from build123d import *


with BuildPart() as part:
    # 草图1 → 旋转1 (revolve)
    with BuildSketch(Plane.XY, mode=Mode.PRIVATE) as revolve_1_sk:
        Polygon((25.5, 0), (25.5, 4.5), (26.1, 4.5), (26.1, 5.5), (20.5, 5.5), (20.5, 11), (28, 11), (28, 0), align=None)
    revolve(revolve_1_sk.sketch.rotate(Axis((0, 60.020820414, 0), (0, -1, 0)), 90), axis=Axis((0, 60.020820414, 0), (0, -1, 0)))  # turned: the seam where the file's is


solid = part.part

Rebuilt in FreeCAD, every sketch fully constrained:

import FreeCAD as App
import Part
import Sketcher
Q = App.Units.Quantity

doc = App.newDocument("Part")
body = doc.addObject("PartDesign::Body", "Body")

sketch1 = body.newObject("Sketcher::SketchObject", "Sketch")
sketch1.AttachmentSupport = (doc.getObject("XY_Plane"), [""])
sketch1.MapMode = "FlatFace"
sketch1.addGeometry(Part.LineSegment(App.Vector(25.5, 4.5, 0), App.Vector(25.5, 0, 0)), False)
sketch1.addGeometry(Part.LineSegment(App.Vector(25.5, 0, 0), App.Vector(28, 0, 0)), False)
sketch1.addGeometry(Part.LineSegment(App.Vector(28, 0, 0), App.Vector(28, 11, 0)), False)
sketch1.addGeometry(Part.LineSegment(App.Vector(28, 11, 0), App.Vector(20.5, 11, 0)), False)
sketch1.addGeometry(Part.LineSegment(App.Vector(20.5, 11, 0), App.Vector(20.5, 5.5, 0)), False)
sketch1.addGeometry(Part.LineSegment(App.Vector(20.5, 5.5, 0), App.Vector(26.1, 5.5, 0)), False)
sketch1.addGeometry(Part.LineSegment(App.Vector(26.1, 5.5, 0), App.Vector(26.1, 4.5, 0)), False)
sketch1.addGeometry(Part.LineSegment(App.Vector(26.1, 4.5, 0), App.Vector(25.5, 4.5, 0)), False)
sketch1.addConstraint(Sketcher.Constraint("Coincident", 0, 2, 1, 1))
sketch1.addConstraint(Sketcher.Constraint("Coincident", 1, 2, 2, 1))
sketch1.addConstraint(Sketcher.Constraint("Coincident", 2, 2, 3, 1))
sketch1.addConstraint(Sketcher.Constraint("Coincident", 3, 2, 4, 1))
sketch1.addConstraint(Sketcher.Constraint("Coincident", 4, 2, 5, 1))
sketch1.addConstraint(Sketcher.Constraint("Coincident", 5, 2, 6, 1))
sketch1.addConstraint(Sketcher.Constraint("Coincident", 6, 2, 7, 1))
sketch1.addConstraint(Sketcher.Constraint("Coincident", 7, 2, 0, 1))
sketch1.addConstraint(Sketcher.Constraint("Vertical", 0))
sketch1.addConstraint(Sketcher.Constraint("Horizontal", 1))
sketch1.addConstraint(Sketcher.Constraint("Vertical", 2))
sketch1.addConstraint(Sketcher.Constraint("Horizontal", 3))
sketch1.addConstraint(Sketcher.Constraint("Vertical", 4))
sketch1.addConstraint(Sketcher.Constraint("Horizontal", 5))
sketch1.addConstraint(Sketcher.Constraint("Vertical", 6))
sketch1.addConstraint(Sketcher.Constraint("Horizontal", 7))
sketch1.addConstraint(Sketcher.Constraint("PointOnObject", 0, 2, -1))
sketch1.addConstraint(Sketcher.Constraint("DistanceY", 2, 1, 2, 2, Q("11 mm")))
sketch1.addConstraint(Sketcher.Constraint("DistanceY", 6, 2, 6, 1, Q("1 mm")))
sketch1.addConstraint(Sketcher.Constraint("DistanceX", 1, 1, 1, 2, Q("2.5 mm")))
sketch1.addConstraint(Sketcher.Constraint("DistanceX", 3, 2, 3, 1, Q("7.5 mm")))
sketch1.addConstraint(Sketcher.Constraint("DistanceX", 5, 1, 5, 2, Q("5.6 mm")))
sketch1.addConstraint(Sketcher.Constraint("DistanceY", 0, 2, 0, 1, Q("4.5 mm")))
sketch1.addConstraint(Sketcher.Constraint("DistanceX", -1, 1, 1, 2, Q("28 mm")))
revolution = body.newObject("PartDesign::Revolution", "Revolution")
revolution.Profile = sketch1
revolution.ReferenceAxis = (sketch1, ["V_Axis"])
revolution.Angle = 360

doc.recompute()
